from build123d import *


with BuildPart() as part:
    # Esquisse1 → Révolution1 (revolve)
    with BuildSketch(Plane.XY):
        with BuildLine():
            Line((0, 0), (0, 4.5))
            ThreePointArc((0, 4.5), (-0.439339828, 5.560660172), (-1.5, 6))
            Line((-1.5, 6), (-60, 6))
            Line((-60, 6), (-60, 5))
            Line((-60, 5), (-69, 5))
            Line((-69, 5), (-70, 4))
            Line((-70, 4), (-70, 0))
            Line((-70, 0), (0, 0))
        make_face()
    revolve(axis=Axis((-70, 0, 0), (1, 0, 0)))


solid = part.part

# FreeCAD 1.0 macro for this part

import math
import FreeCAD as App
import Part
import Sketcher
Q = App.Units.Quantity

doc = App.newDocument("Part")
body = doc.addObject("PartDesign::Body", "Body")

sketch1 = doc.addObject("Sketcher::SketchObject", "Sketch")
body.addObject(sketch1)
sketch1.AttachmentSupport = (doc.XY_Plane, [""])
sketch1.MapMode = "FlatFace"
sketch1.addGeometry(Part.LineSegment(App.Vector(0, 0, 0), App.Vector(0, 4.5, 0)), False)
sketch1.addGeometry(Part.ArcOfCircle(Part.Circle(App.Vector(-1.5, 4.5, 0), App.Vector(0, 0, 1), 1.5), math.radians(0), math.radians(90)), False)
sketch1.addGeometry(Part.LineSegment(App.Vector(-1.5, 6, 0), App.Vector(-60, 6, 0)), False)
sketch1.addGeometry(Part.LineSegment(App.Vector(-60, 6, 0), App.Vector(-60, 5, 0)), False)
sketch1.addGeometry(Part.LineSegment(App.Vector(-60, 5, 0), App.Vector(-69, 5, 0)), False)
sketch1.addGeometry(Part.LineSegment(App.Vector(-69, 5, 0), App.Vector(-70, 4, 0)), False)
sketch1.addGeometry(Part.LineSegment(App.Vector(-70, 4, 0), App.Vector(-70, 0, 0)), False)
sketch1.addGeometry(Part.LineSegment(App.Vector(-70, 0, 0), App.Vector(0, 0, 0)), False)
sketch1.addConstraint(Sketcher.Constraint("Tangent", 0, 2, 1, 1))
sketch1.addConstraint(Sketcher.Constraint("Tangent", 1, 2, 2, 1))
sketch1.addConstraint(Sketcher.Constraint("Coincident", 2, 2, 3, 1))
sketch1.addConstraint(Sketcher.Constraint("Coincident", 3, 2, 4, 1))
sketch1.addConstraint(Sketcher.Constraint("Coincident", 4, 2, 5, 1))
sketch1.addConstraint(Sketcher.Constraint("Coincident", 5, 2, 6, 1))
sketch1.addConstraint(Sketcher.Constraint("Coincident", 6, 2, 7, 1))
sketch1.addConstraint(Sketcher.Constraint("Coincident", 7, 2, 0, 1))
sketch1.addConstraint(Sketcher.Constraint("Vertical", 0))
sketch1.addConstraint(Sketcher.Constraint("Horizontal", 2))
sketch1.addConstraint(Sketcher.Constraint("Vertical", 3))
sketch1.addConstraint(Sketcher.Constraint("Horizontal", 4))
sketch1.addConstraint(Sketcher.Constraint("Vertical", 6))
sketch1.addConstraint(Sketcher.Constraint("Horizontal", 7))
sketch1.addConstraint(Sketcher.Constraint("Coincident", 7, 2, -1, 1))
sketch1.addConstraint(Sketcher.Constraint("Radius", 1, Q("1.5 mm")))
sketch1.addConstraint(Sketcher.Constraint("DistanceX", 4, 2, 4, 1, Q("9 mm")))
sketch1.addConstraint(Sketcher.Constraint("DistanceX", 7, 1, 7, 2, Q("70 mm")))
sketch1.addConstraint(Sketcher.Constraint("DistanceY", 3, 2, 3, 1, Q("1 mm")))
sketch1.addConstraint(Sketcher.Constraint("DistanceY", 6, 2, 6, 1, Q("4 mm")))
sketch1.addConstraint(Sketcher.Constraint("Angle", 5, Q("-135 deg")))
sketch1.addConstraint(Sketcher.Constraint("DistanceX", 2, 2, 2, 1, Q("58.5 mm")))
revolution = doc.addObject("PartDesign::Revolution", "Revolution")
body.addObject(revolution)
revolution.Profile = sketch1
revolution.ReferenceAxis = (sketch1, ["H_Axis"])
revolution.Angle = 360

doc.recompute()
